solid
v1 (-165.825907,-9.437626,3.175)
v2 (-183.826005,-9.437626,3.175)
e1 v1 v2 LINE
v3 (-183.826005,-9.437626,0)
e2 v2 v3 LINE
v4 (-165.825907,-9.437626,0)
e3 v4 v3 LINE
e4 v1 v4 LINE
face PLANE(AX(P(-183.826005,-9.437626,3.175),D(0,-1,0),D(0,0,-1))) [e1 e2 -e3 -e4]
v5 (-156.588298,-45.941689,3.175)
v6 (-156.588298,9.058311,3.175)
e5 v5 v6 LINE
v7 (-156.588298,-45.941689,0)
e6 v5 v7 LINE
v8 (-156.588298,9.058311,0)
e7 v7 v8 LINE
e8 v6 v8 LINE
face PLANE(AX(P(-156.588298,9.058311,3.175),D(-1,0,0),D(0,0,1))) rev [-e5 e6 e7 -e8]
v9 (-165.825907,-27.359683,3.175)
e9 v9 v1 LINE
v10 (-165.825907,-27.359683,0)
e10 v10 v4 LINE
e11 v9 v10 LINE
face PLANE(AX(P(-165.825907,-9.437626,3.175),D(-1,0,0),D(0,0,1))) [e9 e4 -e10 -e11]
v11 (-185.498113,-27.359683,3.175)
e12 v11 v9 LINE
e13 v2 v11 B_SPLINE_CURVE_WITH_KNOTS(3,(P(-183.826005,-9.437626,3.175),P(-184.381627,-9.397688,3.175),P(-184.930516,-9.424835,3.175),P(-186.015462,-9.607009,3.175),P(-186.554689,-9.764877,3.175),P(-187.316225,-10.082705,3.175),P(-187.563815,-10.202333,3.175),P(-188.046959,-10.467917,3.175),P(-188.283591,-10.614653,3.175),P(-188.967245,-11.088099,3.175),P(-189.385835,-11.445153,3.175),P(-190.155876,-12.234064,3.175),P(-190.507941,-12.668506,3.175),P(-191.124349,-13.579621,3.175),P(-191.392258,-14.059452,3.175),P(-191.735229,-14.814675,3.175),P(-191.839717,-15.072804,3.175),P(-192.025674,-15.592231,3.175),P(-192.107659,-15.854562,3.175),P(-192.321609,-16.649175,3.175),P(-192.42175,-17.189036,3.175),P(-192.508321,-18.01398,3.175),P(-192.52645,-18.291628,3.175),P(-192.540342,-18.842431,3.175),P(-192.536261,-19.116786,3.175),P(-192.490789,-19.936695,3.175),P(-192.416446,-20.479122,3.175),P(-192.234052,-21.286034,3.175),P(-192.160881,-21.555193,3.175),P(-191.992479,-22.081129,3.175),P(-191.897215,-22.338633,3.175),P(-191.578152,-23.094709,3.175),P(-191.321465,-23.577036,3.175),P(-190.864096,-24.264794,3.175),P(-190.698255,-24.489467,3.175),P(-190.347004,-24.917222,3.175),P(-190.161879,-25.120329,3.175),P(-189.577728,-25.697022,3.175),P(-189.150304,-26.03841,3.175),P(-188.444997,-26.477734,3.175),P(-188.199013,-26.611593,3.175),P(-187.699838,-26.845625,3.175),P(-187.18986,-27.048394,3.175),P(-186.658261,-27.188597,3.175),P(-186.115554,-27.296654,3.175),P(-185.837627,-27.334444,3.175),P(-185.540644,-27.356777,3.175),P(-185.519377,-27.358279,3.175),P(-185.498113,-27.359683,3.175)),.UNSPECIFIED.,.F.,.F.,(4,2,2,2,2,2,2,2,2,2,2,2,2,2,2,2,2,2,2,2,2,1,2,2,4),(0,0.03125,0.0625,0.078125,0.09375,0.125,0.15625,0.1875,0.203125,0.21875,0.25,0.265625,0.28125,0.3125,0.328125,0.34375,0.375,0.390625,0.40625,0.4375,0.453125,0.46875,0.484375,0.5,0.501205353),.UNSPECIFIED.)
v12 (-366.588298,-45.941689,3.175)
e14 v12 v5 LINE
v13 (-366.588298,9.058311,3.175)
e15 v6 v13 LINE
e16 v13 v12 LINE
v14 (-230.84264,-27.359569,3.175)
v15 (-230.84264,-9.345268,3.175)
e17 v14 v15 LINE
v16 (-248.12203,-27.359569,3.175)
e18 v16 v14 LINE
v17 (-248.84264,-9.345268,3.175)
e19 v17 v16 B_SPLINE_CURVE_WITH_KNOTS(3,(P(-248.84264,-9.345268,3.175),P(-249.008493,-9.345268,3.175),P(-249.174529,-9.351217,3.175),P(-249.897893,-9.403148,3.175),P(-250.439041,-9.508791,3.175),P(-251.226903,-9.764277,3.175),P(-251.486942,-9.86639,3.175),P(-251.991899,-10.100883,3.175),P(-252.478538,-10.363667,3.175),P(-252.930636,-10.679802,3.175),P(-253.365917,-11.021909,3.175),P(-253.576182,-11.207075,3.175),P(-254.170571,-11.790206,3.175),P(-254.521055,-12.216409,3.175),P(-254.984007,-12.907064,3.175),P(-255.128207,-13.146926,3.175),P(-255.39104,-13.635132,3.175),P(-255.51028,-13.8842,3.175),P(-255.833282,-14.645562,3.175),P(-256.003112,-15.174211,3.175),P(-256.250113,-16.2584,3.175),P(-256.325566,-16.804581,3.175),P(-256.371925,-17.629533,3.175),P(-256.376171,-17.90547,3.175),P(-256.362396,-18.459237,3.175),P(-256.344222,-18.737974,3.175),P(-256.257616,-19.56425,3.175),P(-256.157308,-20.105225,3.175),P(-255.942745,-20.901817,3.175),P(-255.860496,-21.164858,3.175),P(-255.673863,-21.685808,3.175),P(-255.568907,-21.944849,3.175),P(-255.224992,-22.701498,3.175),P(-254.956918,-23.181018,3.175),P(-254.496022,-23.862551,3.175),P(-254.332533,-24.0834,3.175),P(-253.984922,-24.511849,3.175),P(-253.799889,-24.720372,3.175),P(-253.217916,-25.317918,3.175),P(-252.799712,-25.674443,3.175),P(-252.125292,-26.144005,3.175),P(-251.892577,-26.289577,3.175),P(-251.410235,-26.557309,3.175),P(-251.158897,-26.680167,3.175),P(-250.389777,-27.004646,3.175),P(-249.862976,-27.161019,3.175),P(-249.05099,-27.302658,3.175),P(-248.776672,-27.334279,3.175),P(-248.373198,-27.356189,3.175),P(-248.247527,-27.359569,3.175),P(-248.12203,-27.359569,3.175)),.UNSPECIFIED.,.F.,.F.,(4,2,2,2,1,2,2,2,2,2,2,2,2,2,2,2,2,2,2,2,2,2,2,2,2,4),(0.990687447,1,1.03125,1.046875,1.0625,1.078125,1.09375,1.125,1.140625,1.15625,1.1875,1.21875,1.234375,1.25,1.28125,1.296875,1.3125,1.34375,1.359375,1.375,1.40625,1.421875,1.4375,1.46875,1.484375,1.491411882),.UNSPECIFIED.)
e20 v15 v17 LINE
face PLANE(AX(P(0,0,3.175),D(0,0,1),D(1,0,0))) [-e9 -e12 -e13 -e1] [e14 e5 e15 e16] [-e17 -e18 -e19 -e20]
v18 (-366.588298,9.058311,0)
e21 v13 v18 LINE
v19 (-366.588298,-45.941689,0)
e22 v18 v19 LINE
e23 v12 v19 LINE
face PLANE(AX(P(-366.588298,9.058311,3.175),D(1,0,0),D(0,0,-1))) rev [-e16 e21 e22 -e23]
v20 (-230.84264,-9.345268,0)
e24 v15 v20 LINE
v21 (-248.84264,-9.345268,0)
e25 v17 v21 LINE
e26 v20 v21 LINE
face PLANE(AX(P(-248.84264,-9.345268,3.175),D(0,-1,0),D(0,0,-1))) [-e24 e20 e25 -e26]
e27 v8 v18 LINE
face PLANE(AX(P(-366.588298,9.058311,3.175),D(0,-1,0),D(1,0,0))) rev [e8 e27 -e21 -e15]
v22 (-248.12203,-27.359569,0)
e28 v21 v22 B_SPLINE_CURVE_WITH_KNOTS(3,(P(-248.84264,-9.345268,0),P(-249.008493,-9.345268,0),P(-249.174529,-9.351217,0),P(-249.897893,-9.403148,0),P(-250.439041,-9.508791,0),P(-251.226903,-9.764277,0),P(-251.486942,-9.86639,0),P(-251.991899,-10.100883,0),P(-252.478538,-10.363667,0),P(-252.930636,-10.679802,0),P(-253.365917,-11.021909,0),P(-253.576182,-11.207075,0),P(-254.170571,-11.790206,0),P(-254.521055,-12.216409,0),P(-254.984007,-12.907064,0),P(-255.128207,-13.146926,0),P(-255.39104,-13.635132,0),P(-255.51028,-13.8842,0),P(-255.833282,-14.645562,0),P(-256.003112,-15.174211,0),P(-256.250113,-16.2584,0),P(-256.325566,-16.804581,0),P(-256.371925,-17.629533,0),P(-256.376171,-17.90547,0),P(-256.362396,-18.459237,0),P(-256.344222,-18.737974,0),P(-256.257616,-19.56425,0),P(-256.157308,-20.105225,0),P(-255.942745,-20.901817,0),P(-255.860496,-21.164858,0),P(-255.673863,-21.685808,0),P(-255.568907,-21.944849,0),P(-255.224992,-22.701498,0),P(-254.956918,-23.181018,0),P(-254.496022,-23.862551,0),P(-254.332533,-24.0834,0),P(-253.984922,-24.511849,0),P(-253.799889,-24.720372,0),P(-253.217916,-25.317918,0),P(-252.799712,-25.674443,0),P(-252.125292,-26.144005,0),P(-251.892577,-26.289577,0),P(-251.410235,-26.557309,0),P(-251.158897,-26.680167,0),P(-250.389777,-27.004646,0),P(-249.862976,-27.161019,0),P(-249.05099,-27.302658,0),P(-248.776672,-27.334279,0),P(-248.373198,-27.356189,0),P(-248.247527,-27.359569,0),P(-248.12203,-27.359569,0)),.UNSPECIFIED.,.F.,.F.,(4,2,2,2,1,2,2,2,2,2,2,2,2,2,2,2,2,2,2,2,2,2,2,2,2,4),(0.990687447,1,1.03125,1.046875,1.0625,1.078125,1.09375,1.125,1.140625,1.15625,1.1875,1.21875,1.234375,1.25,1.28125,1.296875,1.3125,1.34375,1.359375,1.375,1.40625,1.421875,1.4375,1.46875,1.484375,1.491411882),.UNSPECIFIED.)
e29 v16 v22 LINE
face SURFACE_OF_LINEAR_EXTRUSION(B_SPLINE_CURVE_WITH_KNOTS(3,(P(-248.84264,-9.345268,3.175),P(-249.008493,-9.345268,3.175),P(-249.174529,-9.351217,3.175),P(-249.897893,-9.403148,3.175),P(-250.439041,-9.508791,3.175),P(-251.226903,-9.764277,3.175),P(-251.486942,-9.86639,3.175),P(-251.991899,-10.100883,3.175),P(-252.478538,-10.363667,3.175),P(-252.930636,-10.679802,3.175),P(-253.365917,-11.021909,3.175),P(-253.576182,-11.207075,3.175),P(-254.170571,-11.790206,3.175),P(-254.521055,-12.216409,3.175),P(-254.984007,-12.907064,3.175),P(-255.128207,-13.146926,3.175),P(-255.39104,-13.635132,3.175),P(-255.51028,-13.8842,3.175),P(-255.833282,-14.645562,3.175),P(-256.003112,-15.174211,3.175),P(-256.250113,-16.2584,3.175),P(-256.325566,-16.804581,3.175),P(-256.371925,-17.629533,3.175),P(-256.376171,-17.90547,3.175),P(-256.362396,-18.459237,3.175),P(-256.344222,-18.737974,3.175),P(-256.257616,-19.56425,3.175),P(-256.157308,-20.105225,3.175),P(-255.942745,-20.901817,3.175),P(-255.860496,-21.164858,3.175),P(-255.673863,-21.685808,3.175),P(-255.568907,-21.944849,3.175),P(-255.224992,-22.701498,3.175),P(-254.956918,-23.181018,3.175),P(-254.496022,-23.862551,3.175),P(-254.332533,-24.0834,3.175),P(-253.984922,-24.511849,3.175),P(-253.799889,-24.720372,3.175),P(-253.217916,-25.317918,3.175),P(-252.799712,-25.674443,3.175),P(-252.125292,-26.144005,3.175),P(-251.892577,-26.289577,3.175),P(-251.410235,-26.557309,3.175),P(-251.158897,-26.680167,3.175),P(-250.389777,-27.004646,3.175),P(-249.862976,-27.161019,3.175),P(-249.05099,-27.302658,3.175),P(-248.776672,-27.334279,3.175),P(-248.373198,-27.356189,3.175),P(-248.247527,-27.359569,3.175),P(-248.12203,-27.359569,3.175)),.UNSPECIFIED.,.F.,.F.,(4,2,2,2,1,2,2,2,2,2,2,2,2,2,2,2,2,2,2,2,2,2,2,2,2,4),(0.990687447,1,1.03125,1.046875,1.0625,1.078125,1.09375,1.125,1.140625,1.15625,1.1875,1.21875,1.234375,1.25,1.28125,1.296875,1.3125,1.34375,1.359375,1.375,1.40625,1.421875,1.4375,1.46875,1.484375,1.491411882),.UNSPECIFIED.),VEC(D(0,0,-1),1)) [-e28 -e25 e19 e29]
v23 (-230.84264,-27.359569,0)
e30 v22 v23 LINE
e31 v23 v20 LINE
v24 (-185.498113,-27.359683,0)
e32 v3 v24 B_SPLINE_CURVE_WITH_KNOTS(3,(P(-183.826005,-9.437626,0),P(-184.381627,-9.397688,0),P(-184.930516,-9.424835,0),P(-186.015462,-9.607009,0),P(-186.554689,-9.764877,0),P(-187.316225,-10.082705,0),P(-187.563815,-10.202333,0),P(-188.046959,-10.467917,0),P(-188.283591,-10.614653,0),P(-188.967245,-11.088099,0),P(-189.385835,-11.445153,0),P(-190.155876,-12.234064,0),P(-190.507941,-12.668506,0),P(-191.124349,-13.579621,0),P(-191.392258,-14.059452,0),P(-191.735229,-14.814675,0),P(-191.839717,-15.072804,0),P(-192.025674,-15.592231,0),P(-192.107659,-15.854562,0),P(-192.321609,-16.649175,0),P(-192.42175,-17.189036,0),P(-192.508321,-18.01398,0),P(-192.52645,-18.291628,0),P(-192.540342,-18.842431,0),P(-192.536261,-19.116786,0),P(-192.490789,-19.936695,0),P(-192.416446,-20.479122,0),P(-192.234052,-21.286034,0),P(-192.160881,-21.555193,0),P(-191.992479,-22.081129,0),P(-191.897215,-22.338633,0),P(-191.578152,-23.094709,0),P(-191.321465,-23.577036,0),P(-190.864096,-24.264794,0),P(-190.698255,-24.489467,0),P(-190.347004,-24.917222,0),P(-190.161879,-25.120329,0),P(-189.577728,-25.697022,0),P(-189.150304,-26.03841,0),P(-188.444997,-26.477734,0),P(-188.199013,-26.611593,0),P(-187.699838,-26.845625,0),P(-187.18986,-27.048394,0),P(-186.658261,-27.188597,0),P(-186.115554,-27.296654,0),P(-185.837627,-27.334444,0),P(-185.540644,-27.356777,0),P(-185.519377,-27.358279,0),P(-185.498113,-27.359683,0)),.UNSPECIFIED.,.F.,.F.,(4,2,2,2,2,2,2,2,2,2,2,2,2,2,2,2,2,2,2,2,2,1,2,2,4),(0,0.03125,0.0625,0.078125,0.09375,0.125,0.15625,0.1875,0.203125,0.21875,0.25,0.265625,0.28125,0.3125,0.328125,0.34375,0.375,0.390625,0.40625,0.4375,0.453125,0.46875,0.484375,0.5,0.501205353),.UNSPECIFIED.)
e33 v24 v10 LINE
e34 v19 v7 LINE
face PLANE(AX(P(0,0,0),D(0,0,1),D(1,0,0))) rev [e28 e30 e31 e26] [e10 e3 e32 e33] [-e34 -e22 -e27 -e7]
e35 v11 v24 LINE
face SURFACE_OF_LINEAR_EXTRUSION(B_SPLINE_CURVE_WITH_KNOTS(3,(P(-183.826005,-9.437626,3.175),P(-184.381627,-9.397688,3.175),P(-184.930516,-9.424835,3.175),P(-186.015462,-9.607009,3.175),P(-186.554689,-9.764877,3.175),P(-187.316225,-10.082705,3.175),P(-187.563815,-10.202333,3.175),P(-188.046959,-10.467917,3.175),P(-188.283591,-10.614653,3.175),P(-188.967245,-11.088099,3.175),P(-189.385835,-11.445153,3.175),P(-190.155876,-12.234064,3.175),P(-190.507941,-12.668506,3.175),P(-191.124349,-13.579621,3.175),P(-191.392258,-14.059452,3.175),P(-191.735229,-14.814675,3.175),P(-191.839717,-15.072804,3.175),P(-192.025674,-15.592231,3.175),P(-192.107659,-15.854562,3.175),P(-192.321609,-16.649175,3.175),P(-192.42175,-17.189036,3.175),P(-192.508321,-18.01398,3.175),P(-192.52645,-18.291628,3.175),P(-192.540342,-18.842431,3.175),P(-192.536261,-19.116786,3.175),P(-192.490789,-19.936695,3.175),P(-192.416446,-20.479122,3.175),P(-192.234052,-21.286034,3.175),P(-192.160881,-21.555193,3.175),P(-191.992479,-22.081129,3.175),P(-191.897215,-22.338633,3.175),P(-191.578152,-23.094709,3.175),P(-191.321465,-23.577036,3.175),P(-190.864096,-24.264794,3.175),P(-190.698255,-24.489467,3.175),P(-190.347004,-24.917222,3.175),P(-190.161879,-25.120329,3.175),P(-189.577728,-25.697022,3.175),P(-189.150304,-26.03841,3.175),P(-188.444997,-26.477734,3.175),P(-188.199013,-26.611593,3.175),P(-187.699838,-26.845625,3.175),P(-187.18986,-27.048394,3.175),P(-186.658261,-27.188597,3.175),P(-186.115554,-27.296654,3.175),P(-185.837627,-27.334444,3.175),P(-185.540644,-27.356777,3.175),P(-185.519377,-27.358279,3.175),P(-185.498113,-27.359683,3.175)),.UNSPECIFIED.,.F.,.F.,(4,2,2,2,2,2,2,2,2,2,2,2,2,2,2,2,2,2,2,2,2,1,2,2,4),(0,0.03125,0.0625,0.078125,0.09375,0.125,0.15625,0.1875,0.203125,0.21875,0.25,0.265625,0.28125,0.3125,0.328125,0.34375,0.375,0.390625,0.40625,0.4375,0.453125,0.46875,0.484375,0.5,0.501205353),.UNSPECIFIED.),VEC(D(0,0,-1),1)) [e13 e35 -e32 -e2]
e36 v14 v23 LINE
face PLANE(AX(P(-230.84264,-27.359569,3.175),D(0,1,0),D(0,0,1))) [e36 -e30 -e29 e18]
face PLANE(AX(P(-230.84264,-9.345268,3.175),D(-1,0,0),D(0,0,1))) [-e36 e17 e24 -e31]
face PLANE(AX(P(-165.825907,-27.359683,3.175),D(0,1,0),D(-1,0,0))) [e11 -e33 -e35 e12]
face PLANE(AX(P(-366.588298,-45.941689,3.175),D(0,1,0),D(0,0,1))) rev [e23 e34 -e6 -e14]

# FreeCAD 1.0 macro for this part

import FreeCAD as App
import Part
import Sketcher

V = App.Vector


def add_polygon(sketch, points):
    """Adds a closed chain of lines whose ends are joined by coincident constraints."""
    first, n = sketch.GeometryCount, len(points)
    for a, b in zip(points, points[1:] + points[:1]):
        sketch.addGeometry(Part.LineSegment(App.Vector(*a, 0), App.Vector(*b, 0)), False)
    for i in range(n):
        sketch.addConstraint(Sketcher.Constraint("Coincident", first + i, 2, first + (i + 1) % n, 1))

doc = App.newDocument("Part")
params = doc.addObject("Spreadsheet::Sheet", "Params")
for row, (alias, value) in enumerate([
    ("sketch1_width", "210 mm"),
    ("sketch1_width2", "18 mm"),
    ("sketch1_height", "55 mm"),
    ("pad1_length", "3.175 mm"),
], start=1):
    params.set(f"A{row}", alias)
    params.set(f"B{row}", "=" + value)
    params.setAlias(f"B{row}", alias)

body = doc.addObject("PartDesign::Body", "Body")

# Sketch on XY plane
sketch1 = doc.addObject("Sketcher::SketchObject", "Sketch")
body.addObject(sketch1)
sketch1.AttachmentSupport = (doc.XY_Plane, [""])
sketch1.MapMode = "FlatFace"
add_polygon(sketch1, [(-366.588298, 9.058311), (-366.588298, -45.941689), (-156.588298, -45.941689), (-156.588298, 9.058311)])  # lines 0-3
sketch1.addGeometry(Part.BSplineCurve([V(-183.826005, -9.437626, 0), V(-184.381627, -9.397688, 0), V(-184.930516, -9.424835, 0), V(-186.015462, -9.607009, 0), V(-186.554689, -9.764877, 0), V(-187.316225, -10.082705, 0), V(-187.563815, -10.202333, 0), V(-188.046959, -10.467917, 0), V(-188.283591, -10.614653, 0), V(-188.967245, -11.088099, 0), V(-189.385835, -11.445153, 0), V(-190.155876, -12.234064, 0), V(-190.507941, -12.668506, 0), V(-191.124349, -13.579621, 0), V(-191.392258, -14.059452, 0), V(-191.735229, -14.814675, 0), V(-191.839717, -15.072804, 0), V(-192.025674, -15.592231, 0), V(-192.107659, -15.854562, 0), V(-192.321609, -16.649175, 0), V(-192.42175, -17.189036, 0), V(-192.508321, -18.01398, 0), V(-192.52645, -18.291628, 0), V(-192.540342, -18.842431, 0), V(-192.536261, -19.116786, 0), V(-192.490789, -19.936695, 0), V(-192.416446, -20.479122, 0), V(-192.234052, -21.286034, 0), V(-192.160881, -21.555193, 0), V(-191.992479, -22.081129, 0), V(-191.897215, -22.338633, 0), V(-191.578152, -23.094709, 0), V(-191.321465, -23.577036, 0), V(-190.864096, -24.264794, 0), V(-190.698255, -24.489467, 0), V(-190.347004, -24.917222, 0), V(-190.161879, -25.120329, 0), V(-189.577728, -25.697022, 0), V(-189.150304, -26.03841, 0), V(-188.444997, -26.477734, 0), V(-188.199013, -26.611593, 0), V(-187.699838, -26.845625, 0), V(-187.18986, -27.048394, 0), V(-186.658261, -27.188597, 0), V(-186.115554, -27.296654, 0), V(-185.837627, -27.334444, 0), V(-185.540644, -27.356777, 0), V(-185.519377, -27.358279, 0), V(-185.498113, -27.359683, 0)], [4, 2, 2, 2, 2, 2, 2, 2, 2, 2, 2, 2, 2, 2, 2, 2, 2, 2, 2, 2, 2, 1, 2, 2, 4], [0, 0.03125, 0.0625, 0.078125, 0.09375, 0.125, 0.15625, 0.1875, 0.203125, 0.21875, 0.25, 0.265625, 0.28125, 0.3125, 0.328125, 0.34375, 0.375, 0.390625, 0.40625, 0.4375, 0.453125, 0.46875, 0.484375, 0.5, 0.501205353], False, 3, [1, 1, 1, 1, 1, 1, 1, 1, 1, 1, 1, 1, 1, 1, 1, 1, 1, 1, 1, 1, 1, 1, 1, 1, 1, 1, 1, 1, 1, 1, 1, 1, 1, 1, 1, 1, 1, 1, 1, 1, 1, 1, 1, 1, 1, 1, 1, 1, 1], False), False)  # 4
sketch1.addGeometry(Part.LineSegment(V(-183.826005, -9.437626, 0), V(-165.825907, -9.437626, 0)), False)  # 5
sketch1.addGeometry(Part.LineSegment(V(-165.825907, -9.437626, 0), V(-165.825907, -27.359683, 0)), False)  # 6
sketch1.addGeometry(Part.LineSegment(V(-165.825907, -27.359683, 0), V(-185.498113, -27.359683, 0)), False)  # 7
sketch1.addGeometry(Part.BSplineCurve([V(-248.84264, -9.345268, 0), V(-249.008493, -9.345268, 0), V(-249.174529, -9.351217, 0), V(-249.897893, -9.403148, 0), V(-250.439041, -9.508791, 0), V(-251.226903, -9.764277, 0), V(-251.486942, -9.86639, 0), V(-251.991899, -10.100883, 0), V(-252.478538, -10.363667, 0), V(-252.930636, -10.679802, 0), V(-253.365917, -11.021909, 0), V(-253.576182, -11.207075, 0), V(-254.170571, -11.790206, 0), V(-254.521055, -12.216409, 0), V(-254.984007, -12.907064, 0), V(-255.128207, -13.146926, 0), V(-255.39104, -13.635132, 0), V(-255.51028, -13.8842, 0), V(-255.833282, -14.645562, 0), V(-256.003112, -15.174211, 0), V(-256.250113, -16.2584, 0), V(-256.325566, -16.804581, 0), V(-256.371925, -17.629533, 0), V(-256.376171, -17.90547, 0), V(-256.362396, -18.459237, 0), V(-256.344222, -18.737974, 0), V(-256.257616, -19.56425, 0), V(-256.157308, -20.105225, 0), V(-255.942745, -20.901817, 0), V(-255.860496, -21.164858, 0), V(-255.673863, -21.685808, 0), V(-255.568907, -21.944849, 0), V(-255.224992, -22.701498, 0), V(-254.956918, -23.181018, 0), V(-254.496022, -23.862551, 0), V(-254.332533, -24.0834, 0), V(-253.984922, -24.511849, 0), V(-253.799889, -24.720372, 0), V(-253.217916, -25.317918, 0), V(-252.799712, -25.674443, 0), V(-252.125292, -26.144005, 0), V(-251.892577, -26.289577, 0), V(-251.410235, -26.557309, 0), V(-251.158897, -26.680167, 0), V(-250.389777, -27.004646, 0), V(-249.862976, -27.161019, 0), V(-249.05099, -27.302658, 0), V(-248.776672, -27.334279, 0), V(-248.373198, -27.356189, 0), V(-248.247527, -27.359569, 0), V(-248.12203, -27.359569, 0)], [4, 2, 2, 2, 1, 2, 2, 2, 2, 2, 2, 2, 2, 2, 2, 2, 2, 2, 2, 2, 2, 2, 2, 2, 2, 4], [0.990687447, 1, 1.03125, 1.046875, 1.0625, 1.078125, 1.09375, 1.125, 1.140625, 1.15625, 1.1875, 1.21875, 1.234375, 1.25, 1.28125, 1.296875, 1.3125, 1.34375, 1.359375, 1.375, 1.40625, 1.421875, 1.4375, 1.46875, 1.484375, 1.491411882], False, 3, [1, 1, 1, 1, 1, 1, 1, 1, 1, 1, 1, 1, 1, 1, 1, 1, 1, 1, 1, 1, 1, 1, 1, 1, 1, 1, 1, 1, 1, 1, 1, 1, 1, 1, 1, 1, 1, 1, 1, 1, 1, 1, 1, 1, 1, 1, 1, 1, 1, 1, 1], False), False)  # 8
sketch1.addGeometry(Part.LineSegment(V(-248.84264, -9.345268, 0), V(-230.84264, -9.345268, 0)), False)  # 9
sketch1.addGeometry(Part.LineSegment(V(-230.84264, -9.345268, 0), V(-230.84264, -27.359569, 0)), False)  # 10
sketch1.addGeometry(Part.LineSegment(V(-230.84264, -27.359569, 0), V(-248.12203, -27.359569, 0)), False)  # 11
sketch1.addConstraint([
    Sketcher.Constraint("Block", 4),
    Sketcher.Constraint("Block", 8),
    Sketcher.Constraint("Coincident", 4, 1, 5, 1),
    Sketcher.Constraint("Coincident", 5, 2, 6, 1),
    Sketcher.Constraint("Coincident", 6, 2, 7, 1),
    Sketcher.Constraint("Coincident", 7, 2, 4, 2),
    Sketcher.Constraint("Coincident", 8, 1, 9, 1),
    Sketcher.Constraint("Coincident", 9, 2, 10, 1),
    Sketcher.Constraint("Coincident", 10, 2, 11, 1),
    Sketcher.Constraint("Coincident", 11, 2, 8, 2),
    Sketcher.Constraint("Vertical", 0),
    Sketcher.Constraint("Horizontal", 1),
    Sketcher.Constraint("Vertical", 2),
    Sketcher.Constraint("Horizontal", 3),
    Sketcher.Constraint("Horizontal", 5),
    Sketcher.Constraint("Vertical", 6),
    Sketcher.Constraint("Horizontal", 7),
    Sketcher.Constraint("Horizontal", 9),
    Sketcher.Constraint("Vertical", 10),
    Sketcher.Constraint("Horizontal", 11),
    Sketcher.Constraint("DistanceX", 1, 1, 1, 2, 210.0),
    Sketcher.Constraint("DistanceX", 9, 1, 9, 2, 18.0),
    Sketcher.Constraint("DistanceY", 0, 2, 0, 1, 55.0),
    Sketcher.Constraint("DistanceX", 5, 1, 5, 2, 18.000098),
    Sketcher.Constraint("DistanceX", 0, 2, -1, 1, 366.588298),
    Sketcher.Constraint("DistanceY", 0, 2, -1, 1, 45.941689),
])
sketch1.setExpression("Constraints[24]", "Params.sketch1_width")
sketch1.setExpression("Constraints[25]", "Params.sketch1_width2")
sketch1.setExpression("Constraints[26]", "Params.sketch1_height")
pad1 = doc.addObject("PartDesign::Pad", "Pad")
body.addObject(pad1)
pad1.Profile = sketch1
pad1.setExpression("Length", "Params.pad1_length")

doc.recompute()
